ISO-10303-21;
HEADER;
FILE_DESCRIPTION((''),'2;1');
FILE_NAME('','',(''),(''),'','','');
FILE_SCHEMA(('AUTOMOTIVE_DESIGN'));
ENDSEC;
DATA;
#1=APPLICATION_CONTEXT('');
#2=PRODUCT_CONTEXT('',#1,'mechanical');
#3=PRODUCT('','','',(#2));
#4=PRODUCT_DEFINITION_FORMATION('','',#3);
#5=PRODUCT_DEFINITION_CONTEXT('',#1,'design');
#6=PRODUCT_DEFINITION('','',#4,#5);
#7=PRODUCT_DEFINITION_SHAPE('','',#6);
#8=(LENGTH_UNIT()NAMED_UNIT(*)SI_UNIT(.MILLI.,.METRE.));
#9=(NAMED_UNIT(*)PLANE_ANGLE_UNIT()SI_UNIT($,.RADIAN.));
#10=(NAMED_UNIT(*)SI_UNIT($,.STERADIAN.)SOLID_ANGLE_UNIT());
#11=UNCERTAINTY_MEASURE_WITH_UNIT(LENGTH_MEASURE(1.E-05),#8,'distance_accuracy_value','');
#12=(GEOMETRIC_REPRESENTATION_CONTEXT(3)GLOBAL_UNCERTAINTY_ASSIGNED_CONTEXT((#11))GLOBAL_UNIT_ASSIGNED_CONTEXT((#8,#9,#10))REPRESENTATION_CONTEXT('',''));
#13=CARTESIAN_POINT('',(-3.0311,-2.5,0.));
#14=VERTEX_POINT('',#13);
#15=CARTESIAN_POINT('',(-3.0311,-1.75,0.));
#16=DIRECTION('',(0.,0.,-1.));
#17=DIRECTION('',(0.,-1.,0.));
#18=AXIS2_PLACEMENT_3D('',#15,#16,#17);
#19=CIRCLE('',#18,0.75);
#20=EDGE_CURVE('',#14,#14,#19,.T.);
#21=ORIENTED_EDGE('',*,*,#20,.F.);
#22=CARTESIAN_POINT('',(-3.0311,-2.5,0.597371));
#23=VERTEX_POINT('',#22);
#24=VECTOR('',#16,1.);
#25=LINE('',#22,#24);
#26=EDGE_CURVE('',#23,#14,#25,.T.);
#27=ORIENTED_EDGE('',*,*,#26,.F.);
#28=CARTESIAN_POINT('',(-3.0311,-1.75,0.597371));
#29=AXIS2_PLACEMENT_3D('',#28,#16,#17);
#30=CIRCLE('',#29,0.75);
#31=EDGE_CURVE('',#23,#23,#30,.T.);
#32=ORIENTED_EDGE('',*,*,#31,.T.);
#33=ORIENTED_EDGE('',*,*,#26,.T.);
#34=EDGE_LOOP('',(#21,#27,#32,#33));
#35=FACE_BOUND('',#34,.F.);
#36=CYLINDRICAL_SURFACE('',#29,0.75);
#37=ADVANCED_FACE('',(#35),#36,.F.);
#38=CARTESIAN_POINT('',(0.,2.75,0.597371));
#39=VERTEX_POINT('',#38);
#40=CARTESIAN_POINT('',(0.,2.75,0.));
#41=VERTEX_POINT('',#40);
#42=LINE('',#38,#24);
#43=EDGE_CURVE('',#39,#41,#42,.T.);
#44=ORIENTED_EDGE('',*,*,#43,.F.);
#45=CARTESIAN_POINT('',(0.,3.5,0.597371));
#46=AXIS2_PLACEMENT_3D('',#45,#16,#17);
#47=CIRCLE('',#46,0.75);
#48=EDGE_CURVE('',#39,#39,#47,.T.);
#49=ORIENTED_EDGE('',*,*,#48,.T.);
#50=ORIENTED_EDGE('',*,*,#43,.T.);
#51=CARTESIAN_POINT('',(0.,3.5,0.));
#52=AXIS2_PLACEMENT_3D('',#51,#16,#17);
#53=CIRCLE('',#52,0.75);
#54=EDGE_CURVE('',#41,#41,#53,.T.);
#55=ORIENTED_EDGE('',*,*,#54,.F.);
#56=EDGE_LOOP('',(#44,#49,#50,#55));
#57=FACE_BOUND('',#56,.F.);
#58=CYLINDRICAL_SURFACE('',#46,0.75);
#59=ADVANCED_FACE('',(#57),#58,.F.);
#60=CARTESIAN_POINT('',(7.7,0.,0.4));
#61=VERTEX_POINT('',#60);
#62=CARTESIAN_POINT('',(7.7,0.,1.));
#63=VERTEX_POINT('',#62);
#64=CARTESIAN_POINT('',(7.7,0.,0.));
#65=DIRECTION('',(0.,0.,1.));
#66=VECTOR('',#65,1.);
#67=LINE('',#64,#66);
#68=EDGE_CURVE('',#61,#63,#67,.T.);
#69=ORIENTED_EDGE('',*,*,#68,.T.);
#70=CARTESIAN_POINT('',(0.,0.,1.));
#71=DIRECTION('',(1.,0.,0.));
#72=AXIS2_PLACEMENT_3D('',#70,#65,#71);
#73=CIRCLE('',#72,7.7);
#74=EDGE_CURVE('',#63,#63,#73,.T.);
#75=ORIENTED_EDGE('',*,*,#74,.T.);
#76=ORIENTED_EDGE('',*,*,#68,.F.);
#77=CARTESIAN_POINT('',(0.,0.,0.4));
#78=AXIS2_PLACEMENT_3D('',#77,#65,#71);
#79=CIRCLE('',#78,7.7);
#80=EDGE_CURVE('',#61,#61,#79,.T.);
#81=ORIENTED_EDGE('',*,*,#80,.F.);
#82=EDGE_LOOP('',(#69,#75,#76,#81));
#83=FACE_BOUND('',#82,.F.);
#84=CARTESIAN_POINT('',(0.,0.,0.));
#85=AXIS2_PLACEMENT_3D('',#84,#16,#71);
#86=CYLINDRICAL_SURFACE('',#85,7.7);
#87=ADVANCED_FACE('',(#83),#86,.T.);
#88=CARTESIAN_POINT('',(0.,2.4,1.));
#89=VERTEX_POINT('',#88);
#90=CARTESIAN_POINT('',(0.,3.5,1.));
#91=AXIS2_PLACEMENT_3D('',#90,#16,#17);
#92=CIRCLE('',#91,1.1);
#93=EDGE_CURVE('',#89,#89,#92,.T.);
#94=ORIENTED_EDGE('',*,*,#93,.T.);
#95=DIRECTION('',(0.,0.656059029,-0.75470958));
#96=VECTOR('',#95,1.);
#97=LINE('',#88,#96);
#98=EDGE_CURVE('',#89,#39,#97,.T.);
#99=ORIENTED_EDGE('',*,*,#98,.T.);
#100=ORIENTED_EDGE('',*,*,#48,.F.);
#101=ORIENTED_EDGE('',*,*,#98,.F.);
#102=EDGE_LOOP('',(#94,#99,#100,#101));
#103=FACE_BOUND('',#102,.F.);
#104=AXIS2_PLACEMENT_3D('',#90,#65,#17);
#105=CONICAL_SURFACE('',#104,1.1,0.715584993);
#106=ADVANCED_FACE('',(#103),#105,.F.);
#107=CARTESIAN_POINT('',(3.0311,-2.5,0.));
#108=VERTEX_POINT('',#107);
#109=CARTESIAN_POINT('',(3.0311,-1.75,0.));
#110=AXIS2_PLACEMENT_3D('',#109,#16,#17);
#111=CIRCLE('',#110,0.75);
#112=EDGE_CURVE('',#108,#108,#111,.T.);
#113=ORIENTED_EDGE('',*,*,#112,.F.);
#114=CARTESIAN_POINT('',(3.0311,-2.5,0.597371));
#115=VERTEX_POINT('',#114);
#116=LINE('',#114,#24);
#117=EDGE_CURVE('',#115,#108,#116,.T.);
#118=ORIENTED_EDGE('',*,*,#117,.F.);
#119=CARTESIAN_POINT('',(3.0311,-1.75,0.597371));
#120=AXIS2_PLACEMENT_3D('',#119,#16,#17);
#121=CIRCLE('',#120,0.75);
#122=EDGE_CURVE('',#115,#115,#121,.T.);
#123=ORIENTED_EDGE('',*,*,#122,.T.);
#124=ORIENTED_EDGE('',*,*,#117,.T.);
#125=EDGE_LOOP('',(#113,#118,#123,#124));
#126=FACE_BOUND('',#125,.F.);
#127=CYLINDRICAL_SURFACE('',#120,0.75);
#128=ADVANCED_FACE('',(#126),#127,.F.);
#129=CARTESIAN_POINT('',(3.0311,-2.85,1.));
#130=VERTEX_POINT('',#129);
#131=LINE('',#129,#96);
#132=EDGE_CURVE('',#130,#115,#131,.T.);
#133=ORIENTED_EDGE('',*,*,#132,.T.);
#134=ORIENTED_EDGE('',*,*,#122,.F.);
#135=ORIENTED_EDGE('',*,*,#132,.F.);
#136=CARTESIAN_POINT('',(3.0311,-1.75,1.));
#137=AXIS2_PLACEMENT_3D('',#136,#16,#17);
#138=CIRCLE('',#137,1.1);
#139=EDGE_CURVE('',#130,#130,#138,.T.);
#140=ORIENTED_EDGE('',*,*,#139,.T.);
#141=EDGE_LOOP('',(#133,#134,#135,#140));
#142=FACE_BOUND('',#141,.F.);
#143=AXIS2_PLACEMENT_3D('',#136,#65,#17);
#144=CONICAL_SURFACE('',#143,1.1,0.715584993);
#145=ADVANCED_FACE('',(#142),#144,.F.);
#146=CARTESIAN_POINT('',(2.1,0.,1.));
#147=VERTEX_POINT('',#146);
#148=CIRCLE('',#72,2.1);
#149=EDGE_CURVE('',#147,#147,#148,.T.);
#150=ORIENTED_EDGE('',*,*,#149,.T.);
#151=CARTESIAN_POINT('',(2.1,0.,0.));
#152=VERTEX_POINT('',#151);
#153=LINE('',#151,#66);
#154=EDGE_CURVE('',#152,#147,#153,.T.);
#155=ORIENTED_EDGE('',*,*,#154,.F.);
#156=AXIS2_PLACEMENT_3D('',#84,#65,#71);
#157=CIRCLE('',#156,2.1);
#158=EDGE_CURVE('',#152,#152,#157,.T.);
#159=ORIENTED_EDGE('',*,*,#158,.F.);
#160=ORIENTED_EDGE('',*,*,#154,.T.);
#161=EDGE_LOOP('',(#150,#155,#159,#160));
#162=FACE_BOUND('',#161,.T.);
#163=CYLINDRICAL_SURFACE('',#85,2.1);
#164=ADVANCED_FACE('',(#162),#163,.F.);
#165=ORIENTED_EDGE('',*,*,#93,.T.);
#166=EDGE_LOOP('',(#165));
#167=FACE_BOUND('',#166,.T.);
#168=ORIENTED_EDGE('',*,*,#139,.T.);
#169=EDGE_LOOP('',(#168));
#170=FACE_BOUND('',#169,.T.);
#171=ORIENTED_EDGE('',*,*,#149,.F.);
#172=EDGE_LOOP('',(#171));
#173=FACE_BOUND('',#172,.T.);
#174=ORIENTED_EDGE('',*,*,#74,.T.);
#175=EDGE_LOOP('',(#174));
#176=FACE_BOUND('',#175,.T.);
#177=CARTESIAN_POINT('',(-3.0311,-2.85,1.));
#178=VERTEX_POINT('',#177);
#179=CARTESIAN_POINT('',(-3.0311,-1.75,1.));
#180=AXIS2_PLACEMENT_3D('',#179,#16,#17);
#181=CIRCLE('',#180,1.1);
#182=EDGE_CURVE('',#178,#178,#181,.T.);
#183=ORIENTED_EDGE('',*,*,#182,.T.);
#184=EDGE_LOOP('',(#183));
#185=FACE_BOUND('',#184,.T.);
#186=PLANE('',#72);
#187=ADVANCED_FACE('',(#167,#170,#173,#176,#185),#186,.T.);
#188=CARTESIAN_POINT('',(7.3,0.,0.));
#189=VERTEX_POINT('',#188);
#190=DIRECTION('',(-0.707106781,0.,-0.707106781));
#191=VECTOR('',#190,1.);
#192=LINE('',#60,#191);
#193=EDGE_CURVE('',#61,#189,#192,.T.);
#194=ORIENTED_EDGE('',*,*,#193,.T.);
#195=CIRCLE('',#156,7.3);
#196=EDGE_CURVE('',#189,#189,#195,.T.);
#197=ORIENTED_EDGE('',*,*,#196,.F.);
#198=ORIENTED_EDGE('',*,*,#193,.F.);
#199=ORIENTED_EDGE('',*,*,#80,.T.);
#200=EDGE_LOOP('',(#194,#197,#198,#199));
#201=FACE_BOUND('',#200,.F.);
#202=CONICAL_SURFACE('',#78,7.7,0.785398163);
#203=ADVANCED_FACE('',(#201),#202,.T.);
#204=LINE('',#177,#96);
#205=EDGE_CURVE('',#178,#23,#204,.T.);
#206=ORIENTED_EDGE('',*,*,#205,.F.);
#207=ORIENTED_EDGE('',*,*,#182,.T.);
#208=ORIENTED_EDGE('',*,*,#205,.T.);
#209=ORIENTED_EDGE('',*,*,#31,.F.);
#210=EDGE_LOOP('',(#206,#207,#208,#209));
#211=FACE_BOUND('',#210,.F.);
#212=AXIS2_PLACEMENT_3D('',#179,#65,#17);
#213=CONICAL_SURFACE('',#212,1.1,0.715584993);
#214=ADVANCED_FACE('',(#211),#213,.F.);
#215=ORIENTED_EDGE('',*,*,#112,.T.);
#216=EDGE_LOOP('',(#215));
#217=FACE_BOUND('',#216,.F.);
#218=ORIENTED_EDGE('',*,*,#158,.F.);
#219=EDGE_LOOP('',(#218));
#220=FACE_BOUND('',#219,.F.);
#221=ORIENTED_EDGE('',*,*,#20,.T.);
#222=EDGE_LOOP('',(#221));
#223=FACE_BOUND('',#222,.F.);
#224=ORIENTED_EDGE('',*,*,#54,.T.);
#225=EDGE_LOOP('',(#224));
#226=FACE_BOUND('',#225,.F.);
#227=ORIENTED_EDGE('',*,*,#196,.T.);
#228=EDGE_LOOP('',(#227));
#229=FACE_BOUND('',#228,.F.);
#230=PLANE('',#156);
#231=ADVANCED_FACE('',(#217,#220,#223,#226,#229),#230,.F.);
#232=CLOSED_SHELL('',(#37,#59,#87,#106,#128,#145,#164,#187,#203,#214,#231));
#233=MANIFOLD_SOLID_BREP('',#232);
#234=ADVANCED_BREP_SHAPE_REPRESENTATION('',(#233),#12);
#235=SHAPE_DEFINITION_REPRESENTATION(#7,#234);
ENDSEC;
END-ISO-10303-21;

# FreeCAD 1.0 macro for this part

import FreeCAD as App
import Part
import Sketcher
from FreeCAD import Vector
Q = App.Units.Quantity


def edges_at(feature, points):
    """Names of the edges that pass closest to the given points."""
    edges = feature.Shape.Edges
    near = lambda p: min(range(len(edges)), key=lambda i: edges[i].distToShape(Part.Vertex(*p))[0])
    return sorted({f"Edge{near(p) + 1}" for p in points})

doc = App.newDocument("Part")
body = doc.addObject("PartDesign::Body", "Body")

sketch1 = doc.addObject("Sketcher::SketchObject", "Sketch")
body.addObject(sketch1)
sketch1.AttachmentSupport = (doc.XY_Plane, [""])
sketch1.MapMode = "FlatFace"
sketch1.addGeometry([
    Part.Circle(Vector(0, 0, 0), Vector(0, 0, 1), 7.7),
    Part.Circle(Vector(0, 0, 0), Vector(0, 0, 1), 2.1),
], False)
sketch1.addConstraint([
    Sketcher.Constraint("Coincident", 0, 3, -1, 1),
    Sketcher.Constraint("Coincident", 1, 3, -1, 1),
    Sketcher.Constraint("Diameter", 0, Q("15.4 mm")),
    Sketcher.Constraint("Diameter", 1, Q("4.2 mm")),
])
pad1 = doc.addObject("PartDesign::Pad", "Pad")
body.addObject(pad1)
pad1.Profile = sketch1
pad1.Length = 1
doc.recompute()

chamfer = doc.addObject("PartDesign::Chamfer", "Chamfer")
body.addObject(chamfer)
chamfer.Base = (pad1, edges_at(pad1, [(-7.7, 0, 0)]))
chamfer.Size = 0.4

sketch2 = doc.addObject("Sketcher::SketchObject", "Sketch001")
body.addObject(sketch2)
sketch2.AttachmentSupport = (doc.XY_Plane, [""])
sketch2.MapMode = "FlatFace"
sketch2.AttachmentOffset = App.Placement(Vector(0, 0, 1), App.Rotation())
sketch2.addGeometry([
    Part.Circle(Vector(0, 3.5, 0), Vector(0, 0, 1), 0.8),
    Part.Circle(Vector(-3, -1.8, 0), Vector(0, 0, 1), 0.8),
    Part.Circle(Vector(3, -1.8, 0), Vector(0, 0, 1), 0.8),
], False)
sketch2.addConstraint([
    Sketcher.Constraint("Equal", 0, 1),
    Sketcher.Constraint("Equal", 1, 2),
    Sketcher.Constraint("Symmetric", 1, 3, 2, 3, -2),
    Sketcher.Constraint("PointOnObject", 0, 3, -2),
    Sketcher.Constraint("Diameter", 0, Q("1.5 mm")),
    Sketcher.Constraint("DistanceY", -1, 1, 0, 3, Q("3.5 mm")),
    Sketcher.Constraint("DistanceY", 1, 3, -1, 1, Q("1.75 mm")),
    Sketcher.Constraint("DistanceX", 1, 3, -1, 1, Q("3.031 mm")),
])
doc.recompute()
hole = doc.addObject("PartDesign::Hole", "Hole")
body.addObject(hole)
hole.Profile = sketch2
hole.ThreadType = "None"
hole.Diameter = 1.5
hole.DepthType = "ThroughAll"
hole.HoleCutType = "Countersink"
hole.HoleCutDiameter = 2.2
hole.HoleCutCountersinkAngle = 82

doc.recompute()
